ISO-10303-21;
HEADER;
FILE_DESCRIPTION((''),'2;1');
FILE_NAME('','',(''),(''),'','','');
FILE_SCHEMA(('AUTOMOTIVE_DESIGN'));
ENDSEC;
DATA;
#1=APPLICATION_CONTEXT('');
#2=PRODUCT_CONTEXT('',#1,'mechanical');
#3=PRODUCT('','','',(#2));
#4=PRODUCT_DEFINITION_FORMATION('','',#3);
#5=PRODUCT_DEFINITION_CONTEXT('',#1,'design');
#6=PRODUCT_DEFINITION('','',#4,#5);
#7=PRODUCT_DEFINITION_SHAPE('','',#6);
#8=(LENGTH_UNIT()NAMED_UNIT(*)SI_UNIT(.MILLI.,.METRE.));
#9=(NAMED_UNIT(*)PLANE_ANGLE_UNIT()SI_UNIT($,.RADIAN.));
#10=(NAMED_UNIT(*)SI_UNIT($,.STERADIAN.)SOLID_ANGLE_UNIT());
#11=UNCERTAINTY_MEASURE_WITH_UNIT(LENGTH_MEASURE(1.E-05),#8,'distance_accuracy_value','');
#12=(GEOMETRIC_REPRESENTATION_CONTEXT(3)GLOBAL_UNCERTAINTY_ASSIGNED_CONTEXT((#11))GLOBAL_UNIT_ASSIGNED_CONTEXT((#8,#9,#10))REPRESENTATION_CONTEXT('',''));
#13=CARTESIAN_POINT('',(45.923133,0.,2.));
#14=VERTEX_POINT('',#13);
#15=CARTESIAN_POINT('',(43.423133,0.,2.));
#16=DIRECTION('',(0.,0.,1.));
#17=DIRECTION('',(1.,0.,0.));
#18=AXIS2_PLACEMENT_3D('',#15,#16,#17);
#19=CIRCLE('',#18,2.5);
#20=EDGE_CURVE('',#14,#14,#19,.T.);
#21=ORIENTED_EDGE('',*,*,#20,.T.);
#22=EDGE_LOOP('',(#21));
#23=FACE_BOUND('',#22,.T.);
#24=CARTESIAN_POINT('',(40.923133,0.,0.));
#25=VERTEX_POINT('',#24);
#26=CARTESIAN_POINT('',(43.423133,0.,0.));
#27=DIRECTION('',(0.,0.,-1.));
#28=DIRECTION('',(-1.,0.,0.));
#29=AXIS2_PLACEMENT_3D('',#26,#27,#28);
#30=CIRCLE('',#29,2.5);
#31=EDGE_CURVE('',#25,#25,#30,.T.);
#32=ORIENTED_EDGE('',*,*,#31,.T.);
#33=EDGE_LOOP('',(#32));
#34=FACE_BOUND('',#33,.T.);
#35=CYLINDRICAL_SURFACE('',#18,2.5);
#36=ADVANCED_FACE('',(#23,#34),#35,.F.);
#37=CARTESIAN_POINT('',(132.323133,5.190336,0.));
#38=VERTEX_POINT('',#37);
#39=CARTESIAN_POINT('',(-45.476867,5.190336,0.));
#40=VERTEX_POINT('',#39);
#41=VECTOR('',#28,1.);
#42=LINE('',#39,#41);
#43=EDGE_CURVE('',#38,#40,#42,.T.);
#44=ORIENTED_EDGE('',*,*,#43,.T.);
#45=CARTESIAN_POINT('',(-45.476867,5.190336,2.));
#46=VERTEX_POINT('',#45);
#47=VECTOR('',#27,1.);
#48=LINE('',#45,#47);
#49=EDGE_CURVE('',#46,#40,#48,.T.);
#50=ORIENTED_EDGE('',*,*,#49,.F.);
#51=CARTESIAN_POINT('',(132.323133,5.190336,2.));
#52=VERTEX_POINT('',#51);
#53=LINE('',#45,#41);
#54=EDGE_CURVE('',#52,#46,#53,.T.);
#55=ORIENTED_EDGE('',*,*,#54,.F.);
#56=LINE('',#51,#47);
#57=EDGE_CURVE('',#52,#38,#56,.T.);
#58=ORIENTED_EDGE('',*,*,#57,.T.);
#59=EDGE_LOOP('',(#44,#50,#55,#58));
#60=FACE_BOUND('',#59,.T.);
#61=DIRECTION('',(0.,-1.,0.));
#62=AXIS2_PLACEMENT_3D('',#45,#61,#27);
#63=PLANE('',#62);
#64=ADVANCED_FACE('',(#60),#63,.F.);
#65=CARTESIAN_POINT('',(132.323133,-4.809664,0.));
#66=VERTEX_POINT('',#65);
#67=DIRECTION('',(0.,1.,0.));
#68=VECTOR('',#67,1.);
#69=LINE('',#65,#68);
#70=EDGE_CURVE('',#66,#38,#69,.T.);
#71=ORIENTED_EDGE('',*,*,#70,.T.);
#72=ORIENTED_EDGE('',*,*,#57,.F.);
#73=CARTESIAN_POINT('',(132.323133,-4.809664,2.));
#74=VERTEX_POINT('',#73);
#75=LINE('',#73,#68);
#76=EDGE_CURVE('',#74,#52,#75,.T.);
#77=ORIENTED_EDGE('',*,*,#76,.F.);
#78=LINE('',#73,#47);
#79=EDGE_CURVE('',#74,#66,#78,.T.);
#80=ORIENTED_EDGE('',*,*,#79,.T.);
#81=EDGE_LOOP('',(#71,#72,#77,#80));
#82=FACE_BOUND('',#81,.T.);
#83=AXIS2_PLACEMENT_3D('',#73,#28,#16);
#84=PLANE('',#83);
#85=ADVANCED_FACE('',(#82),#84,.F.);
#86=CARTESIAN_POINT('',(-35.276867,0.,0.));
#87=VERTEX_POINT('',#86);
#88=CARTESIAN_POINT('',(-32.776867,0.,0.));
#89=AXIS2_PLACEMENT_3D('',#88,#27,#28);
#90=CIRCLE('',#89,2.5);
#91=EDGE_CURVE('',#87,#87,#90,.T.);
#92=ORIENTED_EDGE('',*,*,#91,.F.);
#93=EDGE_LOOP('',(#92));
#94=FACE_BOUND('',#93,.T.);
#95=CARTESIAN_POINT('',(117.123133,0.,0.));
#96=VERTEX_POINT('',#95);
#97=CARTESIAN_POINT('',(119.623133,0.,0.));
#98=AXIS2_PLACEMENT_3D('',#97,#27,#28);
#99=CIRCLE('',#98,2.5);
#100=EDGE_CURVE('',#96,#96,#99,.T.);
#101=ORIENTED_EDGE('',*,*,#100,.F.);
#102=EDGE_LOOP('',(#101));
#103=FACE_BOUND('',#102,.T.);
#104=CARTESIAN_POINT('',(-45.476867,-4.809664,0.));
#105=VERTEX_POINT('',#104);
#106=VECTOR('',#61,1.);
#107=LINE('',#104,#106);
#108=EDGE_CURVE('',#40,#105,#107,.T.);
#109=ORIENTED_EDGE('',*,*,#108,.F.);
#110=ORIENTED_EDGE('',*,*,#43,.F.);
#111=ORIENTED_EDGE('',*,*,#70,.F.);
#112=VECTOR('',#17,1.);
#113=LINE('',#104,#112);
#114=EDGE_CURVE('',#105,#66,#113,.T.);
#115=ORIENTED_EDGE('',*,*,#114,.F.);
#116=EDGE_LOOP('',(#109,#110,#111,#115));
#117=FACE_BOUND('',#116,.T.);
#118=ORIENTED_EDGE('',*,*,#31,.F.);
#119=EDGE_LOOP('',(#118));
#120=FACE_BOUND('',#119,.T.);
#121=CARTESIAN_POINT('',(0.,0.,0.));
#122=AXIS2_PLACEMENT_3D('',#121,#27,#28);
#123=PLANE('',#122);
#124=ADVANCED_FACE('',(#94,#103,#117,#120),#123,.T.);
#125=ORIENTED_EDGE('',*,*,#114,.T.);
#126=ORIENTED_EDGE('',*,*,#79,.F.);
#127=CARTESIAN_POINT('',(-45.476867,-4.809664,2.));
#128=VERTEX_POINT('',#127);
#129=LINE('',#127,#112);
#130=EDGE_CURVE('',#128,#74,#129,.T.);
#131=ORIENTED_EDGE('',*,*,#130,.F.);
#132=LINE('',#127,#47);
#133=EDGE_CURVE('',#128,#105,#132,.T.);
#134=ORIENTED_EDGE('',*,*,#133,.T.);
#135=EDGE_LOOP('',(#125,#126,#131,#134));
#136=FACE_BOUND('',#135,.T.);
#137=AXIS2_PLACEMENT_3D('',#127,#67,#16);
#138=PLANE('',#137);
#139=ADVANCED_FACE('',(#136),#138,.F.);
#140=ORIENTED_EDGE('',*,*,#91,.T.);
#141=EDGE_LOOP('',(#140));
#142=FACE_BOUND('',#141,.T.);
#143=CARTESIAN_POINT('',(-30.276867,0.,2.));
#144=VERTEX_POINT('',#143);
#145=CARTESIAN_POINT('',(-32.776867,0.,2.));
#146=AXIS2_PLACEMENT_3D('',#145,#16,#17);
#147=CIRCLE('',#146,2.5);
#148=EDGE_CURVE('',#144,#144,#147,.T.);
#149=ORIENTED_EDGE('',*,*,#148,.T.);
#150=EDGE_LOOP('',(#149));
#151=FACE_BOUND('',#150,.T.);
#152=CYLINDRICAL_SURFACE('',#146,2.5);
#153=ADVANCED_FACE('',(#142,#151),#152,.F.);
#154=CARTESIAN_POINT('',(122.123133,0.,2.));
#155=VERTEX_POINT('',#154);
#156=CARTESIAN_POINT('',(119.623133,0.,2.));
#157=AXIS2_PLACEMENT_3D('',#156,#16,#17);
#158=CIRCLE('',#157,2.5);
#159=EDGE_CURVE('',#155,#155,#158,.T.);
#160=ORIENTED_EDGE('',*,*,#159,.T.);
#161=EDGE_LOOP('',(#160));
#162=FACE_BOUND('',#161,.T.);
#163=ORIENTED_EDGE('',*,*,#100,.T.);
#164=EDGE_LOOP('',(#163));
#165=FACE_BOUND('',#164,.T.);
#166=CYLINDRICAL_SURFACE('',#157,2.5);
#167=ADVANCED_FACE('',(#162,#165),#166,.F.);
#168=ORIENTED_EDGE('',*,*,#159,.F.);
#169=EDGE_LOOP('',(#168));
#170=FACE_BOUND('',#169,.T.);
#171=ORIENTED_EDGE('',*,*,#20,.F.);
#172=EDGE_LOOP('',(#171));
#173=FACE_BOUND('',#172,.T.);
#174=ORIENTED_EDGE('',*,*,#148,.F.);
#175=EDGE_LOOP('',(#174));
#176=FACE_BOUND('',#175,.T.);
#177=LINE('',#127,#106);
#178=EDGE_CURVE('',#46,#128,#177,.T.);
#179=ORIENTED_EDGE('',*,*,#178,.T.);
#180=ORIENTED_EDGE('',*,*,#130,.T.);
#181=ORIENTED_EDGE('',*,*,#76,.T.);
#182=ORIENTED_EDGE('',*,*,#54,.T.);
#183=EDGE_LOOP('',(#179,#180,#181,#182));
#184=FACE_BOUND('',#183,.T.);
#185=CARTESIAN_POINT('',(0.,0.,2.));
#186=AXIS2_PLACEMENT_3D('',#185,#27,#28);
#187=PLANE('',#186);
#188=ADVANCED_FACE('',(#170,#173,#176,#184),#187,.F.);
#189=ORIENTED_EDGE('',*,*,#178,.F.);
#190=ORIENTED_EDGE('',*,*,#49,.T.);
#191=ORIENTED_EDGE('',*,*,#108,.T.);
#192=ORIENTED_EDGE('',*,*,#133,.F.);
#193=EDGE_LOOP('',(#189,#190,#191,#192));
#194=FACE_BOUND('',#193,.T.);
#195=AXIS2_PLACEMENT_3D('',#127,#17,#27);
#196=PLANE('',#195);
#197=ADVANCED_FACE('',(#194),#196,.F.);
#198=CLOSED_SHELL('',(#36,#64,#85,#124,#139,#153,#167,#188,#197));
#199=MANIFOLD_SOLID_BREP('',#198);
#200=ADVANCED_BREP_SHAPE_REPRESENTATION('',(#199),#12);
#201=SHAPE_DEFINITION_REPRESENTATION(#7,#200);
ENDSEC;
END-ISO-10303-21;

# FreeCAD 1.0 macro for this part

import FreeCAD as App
import Part
import Sketcher
from FreeCAD import Vector
Q = App.Units.Quantity

doc = App.newDocument("Part")
body = doc.addObject("PartDesign::Body", "Body")

sketch1 = body.newObject("Sketcher::SketchObject", "Sketch")
sketch1.AttachmentSupport = (doc.getObject("XY_Plane"), [""])
sketch1.MapMode = "FlatFace"
sketch1.addGeometry([
    Part.LineSegment(Vector(-45, 5, 0), Vector(-45, -5, 0)),
    Part.LineSegment(Vector(-45, -5, 0), Vector(132, -5, 0)),
    Part.LineSegment(Vector(132, -5, 0), Vector(132, 5, 0)),
    Part.LineSegment(Vector(132, 5, 0), Vector(-45, 5, 0)),
], False)
sketch1.addConstraint([
    Sketcher.Constraint("Coincident", 0, 2, 1, 1),
    Sketcher.Constraint("Coincident", 1, 2, 2, 1),
    Sketcher.Constraint("Coincident", 2, 2, 3, 1),
    Sketcher.Constraint("Coincident", 3, 2, 0, 1),
    Sketcher.Constraint("Vertical", 0),
    Sketcher.Constraint("Horizontal", 1),
    Sketcher.Constraint("Vertical", 2),
    Sketcher.Constraint("Horizontal", 3),
    Sketcher.Constraint("DistanceY", 0, 2, 0, 1, Q("10 mm")),
    Sketcher.Constraint("DistanceX", 1, 1, 1, 2, Q("177.8 mm")),
    Sketcher.Constraint("DistanceX", 0, 2, -1, 1, Q("45.476867 mm")),
    Sketcher.Constraint("DistanceY", 0, 2, -1, 1, Q("4.809664 mm")),
])
pad1 = body.newObject("PartDesign::Pad", "Pad")
pad1.Profile = sketch1
pad1.Length = 2

sketch2 = body.newObject("Sketcher::SketchObject", "Sketch001")
sketch2.AttachmentSupport = (doc.getObject("XY_Plane"), [""])
sketch2.MapMode = "FlatFace"
sketch2.AttachmentOffset = App.Placement(Vector(0, 0, 2), App.Rotation())
sketch2.addGeometry([
    Part.Circle(Vector(-32.8, 0, 0), Vector(0, 0, 1), 2.5),
    Part.Circle(Vector(43.4, 0, 0), Vector(0, 0, 1), 2.5),
    Part.Circle(Vector(119.6, 0, 0), Vector(0, 0, 1), 2.5),
], False)
sketch2.addConstraint([
    Sketcher.Constraint("Equal", 0, 1),
    Sketcher.Constraint("Equal", 1, 2),
    Sketcher.Constraint("PointOnObject", 0, 3, -1),
    Sketcher.Constraint("PointOnObject", 1, 3, -1),
    Sketcher.Constraint("PointOnObject", 2, 3, -1),
    Sketcher.Constraint("Diameter", 0, Q("5 mm")),
    Sketcher.Constraint("DistanceX", 0, 3, 1, 3, Q("76.2 mm")),
    Sketcher.Constraint("DistanceX", 1, 3, 2, 3, Q("76.2 mm")),
    Sketcher.Constraint("DistanceX", 0, 3, -1, 1, Q("32.776867 mm")),
])
doc.recompute()
hole = body.newObject("PartDesign::Hole", "Hole")
hole.Profile = sketch2
hole.ThreadType = "None"
hole.Diameter = 5
hole.DepthType = "Dimension"
hole.Depth = 5
hole.DrillPoint = "Angled"
hole.DrillPointAngle = 118

doc.recompute()
